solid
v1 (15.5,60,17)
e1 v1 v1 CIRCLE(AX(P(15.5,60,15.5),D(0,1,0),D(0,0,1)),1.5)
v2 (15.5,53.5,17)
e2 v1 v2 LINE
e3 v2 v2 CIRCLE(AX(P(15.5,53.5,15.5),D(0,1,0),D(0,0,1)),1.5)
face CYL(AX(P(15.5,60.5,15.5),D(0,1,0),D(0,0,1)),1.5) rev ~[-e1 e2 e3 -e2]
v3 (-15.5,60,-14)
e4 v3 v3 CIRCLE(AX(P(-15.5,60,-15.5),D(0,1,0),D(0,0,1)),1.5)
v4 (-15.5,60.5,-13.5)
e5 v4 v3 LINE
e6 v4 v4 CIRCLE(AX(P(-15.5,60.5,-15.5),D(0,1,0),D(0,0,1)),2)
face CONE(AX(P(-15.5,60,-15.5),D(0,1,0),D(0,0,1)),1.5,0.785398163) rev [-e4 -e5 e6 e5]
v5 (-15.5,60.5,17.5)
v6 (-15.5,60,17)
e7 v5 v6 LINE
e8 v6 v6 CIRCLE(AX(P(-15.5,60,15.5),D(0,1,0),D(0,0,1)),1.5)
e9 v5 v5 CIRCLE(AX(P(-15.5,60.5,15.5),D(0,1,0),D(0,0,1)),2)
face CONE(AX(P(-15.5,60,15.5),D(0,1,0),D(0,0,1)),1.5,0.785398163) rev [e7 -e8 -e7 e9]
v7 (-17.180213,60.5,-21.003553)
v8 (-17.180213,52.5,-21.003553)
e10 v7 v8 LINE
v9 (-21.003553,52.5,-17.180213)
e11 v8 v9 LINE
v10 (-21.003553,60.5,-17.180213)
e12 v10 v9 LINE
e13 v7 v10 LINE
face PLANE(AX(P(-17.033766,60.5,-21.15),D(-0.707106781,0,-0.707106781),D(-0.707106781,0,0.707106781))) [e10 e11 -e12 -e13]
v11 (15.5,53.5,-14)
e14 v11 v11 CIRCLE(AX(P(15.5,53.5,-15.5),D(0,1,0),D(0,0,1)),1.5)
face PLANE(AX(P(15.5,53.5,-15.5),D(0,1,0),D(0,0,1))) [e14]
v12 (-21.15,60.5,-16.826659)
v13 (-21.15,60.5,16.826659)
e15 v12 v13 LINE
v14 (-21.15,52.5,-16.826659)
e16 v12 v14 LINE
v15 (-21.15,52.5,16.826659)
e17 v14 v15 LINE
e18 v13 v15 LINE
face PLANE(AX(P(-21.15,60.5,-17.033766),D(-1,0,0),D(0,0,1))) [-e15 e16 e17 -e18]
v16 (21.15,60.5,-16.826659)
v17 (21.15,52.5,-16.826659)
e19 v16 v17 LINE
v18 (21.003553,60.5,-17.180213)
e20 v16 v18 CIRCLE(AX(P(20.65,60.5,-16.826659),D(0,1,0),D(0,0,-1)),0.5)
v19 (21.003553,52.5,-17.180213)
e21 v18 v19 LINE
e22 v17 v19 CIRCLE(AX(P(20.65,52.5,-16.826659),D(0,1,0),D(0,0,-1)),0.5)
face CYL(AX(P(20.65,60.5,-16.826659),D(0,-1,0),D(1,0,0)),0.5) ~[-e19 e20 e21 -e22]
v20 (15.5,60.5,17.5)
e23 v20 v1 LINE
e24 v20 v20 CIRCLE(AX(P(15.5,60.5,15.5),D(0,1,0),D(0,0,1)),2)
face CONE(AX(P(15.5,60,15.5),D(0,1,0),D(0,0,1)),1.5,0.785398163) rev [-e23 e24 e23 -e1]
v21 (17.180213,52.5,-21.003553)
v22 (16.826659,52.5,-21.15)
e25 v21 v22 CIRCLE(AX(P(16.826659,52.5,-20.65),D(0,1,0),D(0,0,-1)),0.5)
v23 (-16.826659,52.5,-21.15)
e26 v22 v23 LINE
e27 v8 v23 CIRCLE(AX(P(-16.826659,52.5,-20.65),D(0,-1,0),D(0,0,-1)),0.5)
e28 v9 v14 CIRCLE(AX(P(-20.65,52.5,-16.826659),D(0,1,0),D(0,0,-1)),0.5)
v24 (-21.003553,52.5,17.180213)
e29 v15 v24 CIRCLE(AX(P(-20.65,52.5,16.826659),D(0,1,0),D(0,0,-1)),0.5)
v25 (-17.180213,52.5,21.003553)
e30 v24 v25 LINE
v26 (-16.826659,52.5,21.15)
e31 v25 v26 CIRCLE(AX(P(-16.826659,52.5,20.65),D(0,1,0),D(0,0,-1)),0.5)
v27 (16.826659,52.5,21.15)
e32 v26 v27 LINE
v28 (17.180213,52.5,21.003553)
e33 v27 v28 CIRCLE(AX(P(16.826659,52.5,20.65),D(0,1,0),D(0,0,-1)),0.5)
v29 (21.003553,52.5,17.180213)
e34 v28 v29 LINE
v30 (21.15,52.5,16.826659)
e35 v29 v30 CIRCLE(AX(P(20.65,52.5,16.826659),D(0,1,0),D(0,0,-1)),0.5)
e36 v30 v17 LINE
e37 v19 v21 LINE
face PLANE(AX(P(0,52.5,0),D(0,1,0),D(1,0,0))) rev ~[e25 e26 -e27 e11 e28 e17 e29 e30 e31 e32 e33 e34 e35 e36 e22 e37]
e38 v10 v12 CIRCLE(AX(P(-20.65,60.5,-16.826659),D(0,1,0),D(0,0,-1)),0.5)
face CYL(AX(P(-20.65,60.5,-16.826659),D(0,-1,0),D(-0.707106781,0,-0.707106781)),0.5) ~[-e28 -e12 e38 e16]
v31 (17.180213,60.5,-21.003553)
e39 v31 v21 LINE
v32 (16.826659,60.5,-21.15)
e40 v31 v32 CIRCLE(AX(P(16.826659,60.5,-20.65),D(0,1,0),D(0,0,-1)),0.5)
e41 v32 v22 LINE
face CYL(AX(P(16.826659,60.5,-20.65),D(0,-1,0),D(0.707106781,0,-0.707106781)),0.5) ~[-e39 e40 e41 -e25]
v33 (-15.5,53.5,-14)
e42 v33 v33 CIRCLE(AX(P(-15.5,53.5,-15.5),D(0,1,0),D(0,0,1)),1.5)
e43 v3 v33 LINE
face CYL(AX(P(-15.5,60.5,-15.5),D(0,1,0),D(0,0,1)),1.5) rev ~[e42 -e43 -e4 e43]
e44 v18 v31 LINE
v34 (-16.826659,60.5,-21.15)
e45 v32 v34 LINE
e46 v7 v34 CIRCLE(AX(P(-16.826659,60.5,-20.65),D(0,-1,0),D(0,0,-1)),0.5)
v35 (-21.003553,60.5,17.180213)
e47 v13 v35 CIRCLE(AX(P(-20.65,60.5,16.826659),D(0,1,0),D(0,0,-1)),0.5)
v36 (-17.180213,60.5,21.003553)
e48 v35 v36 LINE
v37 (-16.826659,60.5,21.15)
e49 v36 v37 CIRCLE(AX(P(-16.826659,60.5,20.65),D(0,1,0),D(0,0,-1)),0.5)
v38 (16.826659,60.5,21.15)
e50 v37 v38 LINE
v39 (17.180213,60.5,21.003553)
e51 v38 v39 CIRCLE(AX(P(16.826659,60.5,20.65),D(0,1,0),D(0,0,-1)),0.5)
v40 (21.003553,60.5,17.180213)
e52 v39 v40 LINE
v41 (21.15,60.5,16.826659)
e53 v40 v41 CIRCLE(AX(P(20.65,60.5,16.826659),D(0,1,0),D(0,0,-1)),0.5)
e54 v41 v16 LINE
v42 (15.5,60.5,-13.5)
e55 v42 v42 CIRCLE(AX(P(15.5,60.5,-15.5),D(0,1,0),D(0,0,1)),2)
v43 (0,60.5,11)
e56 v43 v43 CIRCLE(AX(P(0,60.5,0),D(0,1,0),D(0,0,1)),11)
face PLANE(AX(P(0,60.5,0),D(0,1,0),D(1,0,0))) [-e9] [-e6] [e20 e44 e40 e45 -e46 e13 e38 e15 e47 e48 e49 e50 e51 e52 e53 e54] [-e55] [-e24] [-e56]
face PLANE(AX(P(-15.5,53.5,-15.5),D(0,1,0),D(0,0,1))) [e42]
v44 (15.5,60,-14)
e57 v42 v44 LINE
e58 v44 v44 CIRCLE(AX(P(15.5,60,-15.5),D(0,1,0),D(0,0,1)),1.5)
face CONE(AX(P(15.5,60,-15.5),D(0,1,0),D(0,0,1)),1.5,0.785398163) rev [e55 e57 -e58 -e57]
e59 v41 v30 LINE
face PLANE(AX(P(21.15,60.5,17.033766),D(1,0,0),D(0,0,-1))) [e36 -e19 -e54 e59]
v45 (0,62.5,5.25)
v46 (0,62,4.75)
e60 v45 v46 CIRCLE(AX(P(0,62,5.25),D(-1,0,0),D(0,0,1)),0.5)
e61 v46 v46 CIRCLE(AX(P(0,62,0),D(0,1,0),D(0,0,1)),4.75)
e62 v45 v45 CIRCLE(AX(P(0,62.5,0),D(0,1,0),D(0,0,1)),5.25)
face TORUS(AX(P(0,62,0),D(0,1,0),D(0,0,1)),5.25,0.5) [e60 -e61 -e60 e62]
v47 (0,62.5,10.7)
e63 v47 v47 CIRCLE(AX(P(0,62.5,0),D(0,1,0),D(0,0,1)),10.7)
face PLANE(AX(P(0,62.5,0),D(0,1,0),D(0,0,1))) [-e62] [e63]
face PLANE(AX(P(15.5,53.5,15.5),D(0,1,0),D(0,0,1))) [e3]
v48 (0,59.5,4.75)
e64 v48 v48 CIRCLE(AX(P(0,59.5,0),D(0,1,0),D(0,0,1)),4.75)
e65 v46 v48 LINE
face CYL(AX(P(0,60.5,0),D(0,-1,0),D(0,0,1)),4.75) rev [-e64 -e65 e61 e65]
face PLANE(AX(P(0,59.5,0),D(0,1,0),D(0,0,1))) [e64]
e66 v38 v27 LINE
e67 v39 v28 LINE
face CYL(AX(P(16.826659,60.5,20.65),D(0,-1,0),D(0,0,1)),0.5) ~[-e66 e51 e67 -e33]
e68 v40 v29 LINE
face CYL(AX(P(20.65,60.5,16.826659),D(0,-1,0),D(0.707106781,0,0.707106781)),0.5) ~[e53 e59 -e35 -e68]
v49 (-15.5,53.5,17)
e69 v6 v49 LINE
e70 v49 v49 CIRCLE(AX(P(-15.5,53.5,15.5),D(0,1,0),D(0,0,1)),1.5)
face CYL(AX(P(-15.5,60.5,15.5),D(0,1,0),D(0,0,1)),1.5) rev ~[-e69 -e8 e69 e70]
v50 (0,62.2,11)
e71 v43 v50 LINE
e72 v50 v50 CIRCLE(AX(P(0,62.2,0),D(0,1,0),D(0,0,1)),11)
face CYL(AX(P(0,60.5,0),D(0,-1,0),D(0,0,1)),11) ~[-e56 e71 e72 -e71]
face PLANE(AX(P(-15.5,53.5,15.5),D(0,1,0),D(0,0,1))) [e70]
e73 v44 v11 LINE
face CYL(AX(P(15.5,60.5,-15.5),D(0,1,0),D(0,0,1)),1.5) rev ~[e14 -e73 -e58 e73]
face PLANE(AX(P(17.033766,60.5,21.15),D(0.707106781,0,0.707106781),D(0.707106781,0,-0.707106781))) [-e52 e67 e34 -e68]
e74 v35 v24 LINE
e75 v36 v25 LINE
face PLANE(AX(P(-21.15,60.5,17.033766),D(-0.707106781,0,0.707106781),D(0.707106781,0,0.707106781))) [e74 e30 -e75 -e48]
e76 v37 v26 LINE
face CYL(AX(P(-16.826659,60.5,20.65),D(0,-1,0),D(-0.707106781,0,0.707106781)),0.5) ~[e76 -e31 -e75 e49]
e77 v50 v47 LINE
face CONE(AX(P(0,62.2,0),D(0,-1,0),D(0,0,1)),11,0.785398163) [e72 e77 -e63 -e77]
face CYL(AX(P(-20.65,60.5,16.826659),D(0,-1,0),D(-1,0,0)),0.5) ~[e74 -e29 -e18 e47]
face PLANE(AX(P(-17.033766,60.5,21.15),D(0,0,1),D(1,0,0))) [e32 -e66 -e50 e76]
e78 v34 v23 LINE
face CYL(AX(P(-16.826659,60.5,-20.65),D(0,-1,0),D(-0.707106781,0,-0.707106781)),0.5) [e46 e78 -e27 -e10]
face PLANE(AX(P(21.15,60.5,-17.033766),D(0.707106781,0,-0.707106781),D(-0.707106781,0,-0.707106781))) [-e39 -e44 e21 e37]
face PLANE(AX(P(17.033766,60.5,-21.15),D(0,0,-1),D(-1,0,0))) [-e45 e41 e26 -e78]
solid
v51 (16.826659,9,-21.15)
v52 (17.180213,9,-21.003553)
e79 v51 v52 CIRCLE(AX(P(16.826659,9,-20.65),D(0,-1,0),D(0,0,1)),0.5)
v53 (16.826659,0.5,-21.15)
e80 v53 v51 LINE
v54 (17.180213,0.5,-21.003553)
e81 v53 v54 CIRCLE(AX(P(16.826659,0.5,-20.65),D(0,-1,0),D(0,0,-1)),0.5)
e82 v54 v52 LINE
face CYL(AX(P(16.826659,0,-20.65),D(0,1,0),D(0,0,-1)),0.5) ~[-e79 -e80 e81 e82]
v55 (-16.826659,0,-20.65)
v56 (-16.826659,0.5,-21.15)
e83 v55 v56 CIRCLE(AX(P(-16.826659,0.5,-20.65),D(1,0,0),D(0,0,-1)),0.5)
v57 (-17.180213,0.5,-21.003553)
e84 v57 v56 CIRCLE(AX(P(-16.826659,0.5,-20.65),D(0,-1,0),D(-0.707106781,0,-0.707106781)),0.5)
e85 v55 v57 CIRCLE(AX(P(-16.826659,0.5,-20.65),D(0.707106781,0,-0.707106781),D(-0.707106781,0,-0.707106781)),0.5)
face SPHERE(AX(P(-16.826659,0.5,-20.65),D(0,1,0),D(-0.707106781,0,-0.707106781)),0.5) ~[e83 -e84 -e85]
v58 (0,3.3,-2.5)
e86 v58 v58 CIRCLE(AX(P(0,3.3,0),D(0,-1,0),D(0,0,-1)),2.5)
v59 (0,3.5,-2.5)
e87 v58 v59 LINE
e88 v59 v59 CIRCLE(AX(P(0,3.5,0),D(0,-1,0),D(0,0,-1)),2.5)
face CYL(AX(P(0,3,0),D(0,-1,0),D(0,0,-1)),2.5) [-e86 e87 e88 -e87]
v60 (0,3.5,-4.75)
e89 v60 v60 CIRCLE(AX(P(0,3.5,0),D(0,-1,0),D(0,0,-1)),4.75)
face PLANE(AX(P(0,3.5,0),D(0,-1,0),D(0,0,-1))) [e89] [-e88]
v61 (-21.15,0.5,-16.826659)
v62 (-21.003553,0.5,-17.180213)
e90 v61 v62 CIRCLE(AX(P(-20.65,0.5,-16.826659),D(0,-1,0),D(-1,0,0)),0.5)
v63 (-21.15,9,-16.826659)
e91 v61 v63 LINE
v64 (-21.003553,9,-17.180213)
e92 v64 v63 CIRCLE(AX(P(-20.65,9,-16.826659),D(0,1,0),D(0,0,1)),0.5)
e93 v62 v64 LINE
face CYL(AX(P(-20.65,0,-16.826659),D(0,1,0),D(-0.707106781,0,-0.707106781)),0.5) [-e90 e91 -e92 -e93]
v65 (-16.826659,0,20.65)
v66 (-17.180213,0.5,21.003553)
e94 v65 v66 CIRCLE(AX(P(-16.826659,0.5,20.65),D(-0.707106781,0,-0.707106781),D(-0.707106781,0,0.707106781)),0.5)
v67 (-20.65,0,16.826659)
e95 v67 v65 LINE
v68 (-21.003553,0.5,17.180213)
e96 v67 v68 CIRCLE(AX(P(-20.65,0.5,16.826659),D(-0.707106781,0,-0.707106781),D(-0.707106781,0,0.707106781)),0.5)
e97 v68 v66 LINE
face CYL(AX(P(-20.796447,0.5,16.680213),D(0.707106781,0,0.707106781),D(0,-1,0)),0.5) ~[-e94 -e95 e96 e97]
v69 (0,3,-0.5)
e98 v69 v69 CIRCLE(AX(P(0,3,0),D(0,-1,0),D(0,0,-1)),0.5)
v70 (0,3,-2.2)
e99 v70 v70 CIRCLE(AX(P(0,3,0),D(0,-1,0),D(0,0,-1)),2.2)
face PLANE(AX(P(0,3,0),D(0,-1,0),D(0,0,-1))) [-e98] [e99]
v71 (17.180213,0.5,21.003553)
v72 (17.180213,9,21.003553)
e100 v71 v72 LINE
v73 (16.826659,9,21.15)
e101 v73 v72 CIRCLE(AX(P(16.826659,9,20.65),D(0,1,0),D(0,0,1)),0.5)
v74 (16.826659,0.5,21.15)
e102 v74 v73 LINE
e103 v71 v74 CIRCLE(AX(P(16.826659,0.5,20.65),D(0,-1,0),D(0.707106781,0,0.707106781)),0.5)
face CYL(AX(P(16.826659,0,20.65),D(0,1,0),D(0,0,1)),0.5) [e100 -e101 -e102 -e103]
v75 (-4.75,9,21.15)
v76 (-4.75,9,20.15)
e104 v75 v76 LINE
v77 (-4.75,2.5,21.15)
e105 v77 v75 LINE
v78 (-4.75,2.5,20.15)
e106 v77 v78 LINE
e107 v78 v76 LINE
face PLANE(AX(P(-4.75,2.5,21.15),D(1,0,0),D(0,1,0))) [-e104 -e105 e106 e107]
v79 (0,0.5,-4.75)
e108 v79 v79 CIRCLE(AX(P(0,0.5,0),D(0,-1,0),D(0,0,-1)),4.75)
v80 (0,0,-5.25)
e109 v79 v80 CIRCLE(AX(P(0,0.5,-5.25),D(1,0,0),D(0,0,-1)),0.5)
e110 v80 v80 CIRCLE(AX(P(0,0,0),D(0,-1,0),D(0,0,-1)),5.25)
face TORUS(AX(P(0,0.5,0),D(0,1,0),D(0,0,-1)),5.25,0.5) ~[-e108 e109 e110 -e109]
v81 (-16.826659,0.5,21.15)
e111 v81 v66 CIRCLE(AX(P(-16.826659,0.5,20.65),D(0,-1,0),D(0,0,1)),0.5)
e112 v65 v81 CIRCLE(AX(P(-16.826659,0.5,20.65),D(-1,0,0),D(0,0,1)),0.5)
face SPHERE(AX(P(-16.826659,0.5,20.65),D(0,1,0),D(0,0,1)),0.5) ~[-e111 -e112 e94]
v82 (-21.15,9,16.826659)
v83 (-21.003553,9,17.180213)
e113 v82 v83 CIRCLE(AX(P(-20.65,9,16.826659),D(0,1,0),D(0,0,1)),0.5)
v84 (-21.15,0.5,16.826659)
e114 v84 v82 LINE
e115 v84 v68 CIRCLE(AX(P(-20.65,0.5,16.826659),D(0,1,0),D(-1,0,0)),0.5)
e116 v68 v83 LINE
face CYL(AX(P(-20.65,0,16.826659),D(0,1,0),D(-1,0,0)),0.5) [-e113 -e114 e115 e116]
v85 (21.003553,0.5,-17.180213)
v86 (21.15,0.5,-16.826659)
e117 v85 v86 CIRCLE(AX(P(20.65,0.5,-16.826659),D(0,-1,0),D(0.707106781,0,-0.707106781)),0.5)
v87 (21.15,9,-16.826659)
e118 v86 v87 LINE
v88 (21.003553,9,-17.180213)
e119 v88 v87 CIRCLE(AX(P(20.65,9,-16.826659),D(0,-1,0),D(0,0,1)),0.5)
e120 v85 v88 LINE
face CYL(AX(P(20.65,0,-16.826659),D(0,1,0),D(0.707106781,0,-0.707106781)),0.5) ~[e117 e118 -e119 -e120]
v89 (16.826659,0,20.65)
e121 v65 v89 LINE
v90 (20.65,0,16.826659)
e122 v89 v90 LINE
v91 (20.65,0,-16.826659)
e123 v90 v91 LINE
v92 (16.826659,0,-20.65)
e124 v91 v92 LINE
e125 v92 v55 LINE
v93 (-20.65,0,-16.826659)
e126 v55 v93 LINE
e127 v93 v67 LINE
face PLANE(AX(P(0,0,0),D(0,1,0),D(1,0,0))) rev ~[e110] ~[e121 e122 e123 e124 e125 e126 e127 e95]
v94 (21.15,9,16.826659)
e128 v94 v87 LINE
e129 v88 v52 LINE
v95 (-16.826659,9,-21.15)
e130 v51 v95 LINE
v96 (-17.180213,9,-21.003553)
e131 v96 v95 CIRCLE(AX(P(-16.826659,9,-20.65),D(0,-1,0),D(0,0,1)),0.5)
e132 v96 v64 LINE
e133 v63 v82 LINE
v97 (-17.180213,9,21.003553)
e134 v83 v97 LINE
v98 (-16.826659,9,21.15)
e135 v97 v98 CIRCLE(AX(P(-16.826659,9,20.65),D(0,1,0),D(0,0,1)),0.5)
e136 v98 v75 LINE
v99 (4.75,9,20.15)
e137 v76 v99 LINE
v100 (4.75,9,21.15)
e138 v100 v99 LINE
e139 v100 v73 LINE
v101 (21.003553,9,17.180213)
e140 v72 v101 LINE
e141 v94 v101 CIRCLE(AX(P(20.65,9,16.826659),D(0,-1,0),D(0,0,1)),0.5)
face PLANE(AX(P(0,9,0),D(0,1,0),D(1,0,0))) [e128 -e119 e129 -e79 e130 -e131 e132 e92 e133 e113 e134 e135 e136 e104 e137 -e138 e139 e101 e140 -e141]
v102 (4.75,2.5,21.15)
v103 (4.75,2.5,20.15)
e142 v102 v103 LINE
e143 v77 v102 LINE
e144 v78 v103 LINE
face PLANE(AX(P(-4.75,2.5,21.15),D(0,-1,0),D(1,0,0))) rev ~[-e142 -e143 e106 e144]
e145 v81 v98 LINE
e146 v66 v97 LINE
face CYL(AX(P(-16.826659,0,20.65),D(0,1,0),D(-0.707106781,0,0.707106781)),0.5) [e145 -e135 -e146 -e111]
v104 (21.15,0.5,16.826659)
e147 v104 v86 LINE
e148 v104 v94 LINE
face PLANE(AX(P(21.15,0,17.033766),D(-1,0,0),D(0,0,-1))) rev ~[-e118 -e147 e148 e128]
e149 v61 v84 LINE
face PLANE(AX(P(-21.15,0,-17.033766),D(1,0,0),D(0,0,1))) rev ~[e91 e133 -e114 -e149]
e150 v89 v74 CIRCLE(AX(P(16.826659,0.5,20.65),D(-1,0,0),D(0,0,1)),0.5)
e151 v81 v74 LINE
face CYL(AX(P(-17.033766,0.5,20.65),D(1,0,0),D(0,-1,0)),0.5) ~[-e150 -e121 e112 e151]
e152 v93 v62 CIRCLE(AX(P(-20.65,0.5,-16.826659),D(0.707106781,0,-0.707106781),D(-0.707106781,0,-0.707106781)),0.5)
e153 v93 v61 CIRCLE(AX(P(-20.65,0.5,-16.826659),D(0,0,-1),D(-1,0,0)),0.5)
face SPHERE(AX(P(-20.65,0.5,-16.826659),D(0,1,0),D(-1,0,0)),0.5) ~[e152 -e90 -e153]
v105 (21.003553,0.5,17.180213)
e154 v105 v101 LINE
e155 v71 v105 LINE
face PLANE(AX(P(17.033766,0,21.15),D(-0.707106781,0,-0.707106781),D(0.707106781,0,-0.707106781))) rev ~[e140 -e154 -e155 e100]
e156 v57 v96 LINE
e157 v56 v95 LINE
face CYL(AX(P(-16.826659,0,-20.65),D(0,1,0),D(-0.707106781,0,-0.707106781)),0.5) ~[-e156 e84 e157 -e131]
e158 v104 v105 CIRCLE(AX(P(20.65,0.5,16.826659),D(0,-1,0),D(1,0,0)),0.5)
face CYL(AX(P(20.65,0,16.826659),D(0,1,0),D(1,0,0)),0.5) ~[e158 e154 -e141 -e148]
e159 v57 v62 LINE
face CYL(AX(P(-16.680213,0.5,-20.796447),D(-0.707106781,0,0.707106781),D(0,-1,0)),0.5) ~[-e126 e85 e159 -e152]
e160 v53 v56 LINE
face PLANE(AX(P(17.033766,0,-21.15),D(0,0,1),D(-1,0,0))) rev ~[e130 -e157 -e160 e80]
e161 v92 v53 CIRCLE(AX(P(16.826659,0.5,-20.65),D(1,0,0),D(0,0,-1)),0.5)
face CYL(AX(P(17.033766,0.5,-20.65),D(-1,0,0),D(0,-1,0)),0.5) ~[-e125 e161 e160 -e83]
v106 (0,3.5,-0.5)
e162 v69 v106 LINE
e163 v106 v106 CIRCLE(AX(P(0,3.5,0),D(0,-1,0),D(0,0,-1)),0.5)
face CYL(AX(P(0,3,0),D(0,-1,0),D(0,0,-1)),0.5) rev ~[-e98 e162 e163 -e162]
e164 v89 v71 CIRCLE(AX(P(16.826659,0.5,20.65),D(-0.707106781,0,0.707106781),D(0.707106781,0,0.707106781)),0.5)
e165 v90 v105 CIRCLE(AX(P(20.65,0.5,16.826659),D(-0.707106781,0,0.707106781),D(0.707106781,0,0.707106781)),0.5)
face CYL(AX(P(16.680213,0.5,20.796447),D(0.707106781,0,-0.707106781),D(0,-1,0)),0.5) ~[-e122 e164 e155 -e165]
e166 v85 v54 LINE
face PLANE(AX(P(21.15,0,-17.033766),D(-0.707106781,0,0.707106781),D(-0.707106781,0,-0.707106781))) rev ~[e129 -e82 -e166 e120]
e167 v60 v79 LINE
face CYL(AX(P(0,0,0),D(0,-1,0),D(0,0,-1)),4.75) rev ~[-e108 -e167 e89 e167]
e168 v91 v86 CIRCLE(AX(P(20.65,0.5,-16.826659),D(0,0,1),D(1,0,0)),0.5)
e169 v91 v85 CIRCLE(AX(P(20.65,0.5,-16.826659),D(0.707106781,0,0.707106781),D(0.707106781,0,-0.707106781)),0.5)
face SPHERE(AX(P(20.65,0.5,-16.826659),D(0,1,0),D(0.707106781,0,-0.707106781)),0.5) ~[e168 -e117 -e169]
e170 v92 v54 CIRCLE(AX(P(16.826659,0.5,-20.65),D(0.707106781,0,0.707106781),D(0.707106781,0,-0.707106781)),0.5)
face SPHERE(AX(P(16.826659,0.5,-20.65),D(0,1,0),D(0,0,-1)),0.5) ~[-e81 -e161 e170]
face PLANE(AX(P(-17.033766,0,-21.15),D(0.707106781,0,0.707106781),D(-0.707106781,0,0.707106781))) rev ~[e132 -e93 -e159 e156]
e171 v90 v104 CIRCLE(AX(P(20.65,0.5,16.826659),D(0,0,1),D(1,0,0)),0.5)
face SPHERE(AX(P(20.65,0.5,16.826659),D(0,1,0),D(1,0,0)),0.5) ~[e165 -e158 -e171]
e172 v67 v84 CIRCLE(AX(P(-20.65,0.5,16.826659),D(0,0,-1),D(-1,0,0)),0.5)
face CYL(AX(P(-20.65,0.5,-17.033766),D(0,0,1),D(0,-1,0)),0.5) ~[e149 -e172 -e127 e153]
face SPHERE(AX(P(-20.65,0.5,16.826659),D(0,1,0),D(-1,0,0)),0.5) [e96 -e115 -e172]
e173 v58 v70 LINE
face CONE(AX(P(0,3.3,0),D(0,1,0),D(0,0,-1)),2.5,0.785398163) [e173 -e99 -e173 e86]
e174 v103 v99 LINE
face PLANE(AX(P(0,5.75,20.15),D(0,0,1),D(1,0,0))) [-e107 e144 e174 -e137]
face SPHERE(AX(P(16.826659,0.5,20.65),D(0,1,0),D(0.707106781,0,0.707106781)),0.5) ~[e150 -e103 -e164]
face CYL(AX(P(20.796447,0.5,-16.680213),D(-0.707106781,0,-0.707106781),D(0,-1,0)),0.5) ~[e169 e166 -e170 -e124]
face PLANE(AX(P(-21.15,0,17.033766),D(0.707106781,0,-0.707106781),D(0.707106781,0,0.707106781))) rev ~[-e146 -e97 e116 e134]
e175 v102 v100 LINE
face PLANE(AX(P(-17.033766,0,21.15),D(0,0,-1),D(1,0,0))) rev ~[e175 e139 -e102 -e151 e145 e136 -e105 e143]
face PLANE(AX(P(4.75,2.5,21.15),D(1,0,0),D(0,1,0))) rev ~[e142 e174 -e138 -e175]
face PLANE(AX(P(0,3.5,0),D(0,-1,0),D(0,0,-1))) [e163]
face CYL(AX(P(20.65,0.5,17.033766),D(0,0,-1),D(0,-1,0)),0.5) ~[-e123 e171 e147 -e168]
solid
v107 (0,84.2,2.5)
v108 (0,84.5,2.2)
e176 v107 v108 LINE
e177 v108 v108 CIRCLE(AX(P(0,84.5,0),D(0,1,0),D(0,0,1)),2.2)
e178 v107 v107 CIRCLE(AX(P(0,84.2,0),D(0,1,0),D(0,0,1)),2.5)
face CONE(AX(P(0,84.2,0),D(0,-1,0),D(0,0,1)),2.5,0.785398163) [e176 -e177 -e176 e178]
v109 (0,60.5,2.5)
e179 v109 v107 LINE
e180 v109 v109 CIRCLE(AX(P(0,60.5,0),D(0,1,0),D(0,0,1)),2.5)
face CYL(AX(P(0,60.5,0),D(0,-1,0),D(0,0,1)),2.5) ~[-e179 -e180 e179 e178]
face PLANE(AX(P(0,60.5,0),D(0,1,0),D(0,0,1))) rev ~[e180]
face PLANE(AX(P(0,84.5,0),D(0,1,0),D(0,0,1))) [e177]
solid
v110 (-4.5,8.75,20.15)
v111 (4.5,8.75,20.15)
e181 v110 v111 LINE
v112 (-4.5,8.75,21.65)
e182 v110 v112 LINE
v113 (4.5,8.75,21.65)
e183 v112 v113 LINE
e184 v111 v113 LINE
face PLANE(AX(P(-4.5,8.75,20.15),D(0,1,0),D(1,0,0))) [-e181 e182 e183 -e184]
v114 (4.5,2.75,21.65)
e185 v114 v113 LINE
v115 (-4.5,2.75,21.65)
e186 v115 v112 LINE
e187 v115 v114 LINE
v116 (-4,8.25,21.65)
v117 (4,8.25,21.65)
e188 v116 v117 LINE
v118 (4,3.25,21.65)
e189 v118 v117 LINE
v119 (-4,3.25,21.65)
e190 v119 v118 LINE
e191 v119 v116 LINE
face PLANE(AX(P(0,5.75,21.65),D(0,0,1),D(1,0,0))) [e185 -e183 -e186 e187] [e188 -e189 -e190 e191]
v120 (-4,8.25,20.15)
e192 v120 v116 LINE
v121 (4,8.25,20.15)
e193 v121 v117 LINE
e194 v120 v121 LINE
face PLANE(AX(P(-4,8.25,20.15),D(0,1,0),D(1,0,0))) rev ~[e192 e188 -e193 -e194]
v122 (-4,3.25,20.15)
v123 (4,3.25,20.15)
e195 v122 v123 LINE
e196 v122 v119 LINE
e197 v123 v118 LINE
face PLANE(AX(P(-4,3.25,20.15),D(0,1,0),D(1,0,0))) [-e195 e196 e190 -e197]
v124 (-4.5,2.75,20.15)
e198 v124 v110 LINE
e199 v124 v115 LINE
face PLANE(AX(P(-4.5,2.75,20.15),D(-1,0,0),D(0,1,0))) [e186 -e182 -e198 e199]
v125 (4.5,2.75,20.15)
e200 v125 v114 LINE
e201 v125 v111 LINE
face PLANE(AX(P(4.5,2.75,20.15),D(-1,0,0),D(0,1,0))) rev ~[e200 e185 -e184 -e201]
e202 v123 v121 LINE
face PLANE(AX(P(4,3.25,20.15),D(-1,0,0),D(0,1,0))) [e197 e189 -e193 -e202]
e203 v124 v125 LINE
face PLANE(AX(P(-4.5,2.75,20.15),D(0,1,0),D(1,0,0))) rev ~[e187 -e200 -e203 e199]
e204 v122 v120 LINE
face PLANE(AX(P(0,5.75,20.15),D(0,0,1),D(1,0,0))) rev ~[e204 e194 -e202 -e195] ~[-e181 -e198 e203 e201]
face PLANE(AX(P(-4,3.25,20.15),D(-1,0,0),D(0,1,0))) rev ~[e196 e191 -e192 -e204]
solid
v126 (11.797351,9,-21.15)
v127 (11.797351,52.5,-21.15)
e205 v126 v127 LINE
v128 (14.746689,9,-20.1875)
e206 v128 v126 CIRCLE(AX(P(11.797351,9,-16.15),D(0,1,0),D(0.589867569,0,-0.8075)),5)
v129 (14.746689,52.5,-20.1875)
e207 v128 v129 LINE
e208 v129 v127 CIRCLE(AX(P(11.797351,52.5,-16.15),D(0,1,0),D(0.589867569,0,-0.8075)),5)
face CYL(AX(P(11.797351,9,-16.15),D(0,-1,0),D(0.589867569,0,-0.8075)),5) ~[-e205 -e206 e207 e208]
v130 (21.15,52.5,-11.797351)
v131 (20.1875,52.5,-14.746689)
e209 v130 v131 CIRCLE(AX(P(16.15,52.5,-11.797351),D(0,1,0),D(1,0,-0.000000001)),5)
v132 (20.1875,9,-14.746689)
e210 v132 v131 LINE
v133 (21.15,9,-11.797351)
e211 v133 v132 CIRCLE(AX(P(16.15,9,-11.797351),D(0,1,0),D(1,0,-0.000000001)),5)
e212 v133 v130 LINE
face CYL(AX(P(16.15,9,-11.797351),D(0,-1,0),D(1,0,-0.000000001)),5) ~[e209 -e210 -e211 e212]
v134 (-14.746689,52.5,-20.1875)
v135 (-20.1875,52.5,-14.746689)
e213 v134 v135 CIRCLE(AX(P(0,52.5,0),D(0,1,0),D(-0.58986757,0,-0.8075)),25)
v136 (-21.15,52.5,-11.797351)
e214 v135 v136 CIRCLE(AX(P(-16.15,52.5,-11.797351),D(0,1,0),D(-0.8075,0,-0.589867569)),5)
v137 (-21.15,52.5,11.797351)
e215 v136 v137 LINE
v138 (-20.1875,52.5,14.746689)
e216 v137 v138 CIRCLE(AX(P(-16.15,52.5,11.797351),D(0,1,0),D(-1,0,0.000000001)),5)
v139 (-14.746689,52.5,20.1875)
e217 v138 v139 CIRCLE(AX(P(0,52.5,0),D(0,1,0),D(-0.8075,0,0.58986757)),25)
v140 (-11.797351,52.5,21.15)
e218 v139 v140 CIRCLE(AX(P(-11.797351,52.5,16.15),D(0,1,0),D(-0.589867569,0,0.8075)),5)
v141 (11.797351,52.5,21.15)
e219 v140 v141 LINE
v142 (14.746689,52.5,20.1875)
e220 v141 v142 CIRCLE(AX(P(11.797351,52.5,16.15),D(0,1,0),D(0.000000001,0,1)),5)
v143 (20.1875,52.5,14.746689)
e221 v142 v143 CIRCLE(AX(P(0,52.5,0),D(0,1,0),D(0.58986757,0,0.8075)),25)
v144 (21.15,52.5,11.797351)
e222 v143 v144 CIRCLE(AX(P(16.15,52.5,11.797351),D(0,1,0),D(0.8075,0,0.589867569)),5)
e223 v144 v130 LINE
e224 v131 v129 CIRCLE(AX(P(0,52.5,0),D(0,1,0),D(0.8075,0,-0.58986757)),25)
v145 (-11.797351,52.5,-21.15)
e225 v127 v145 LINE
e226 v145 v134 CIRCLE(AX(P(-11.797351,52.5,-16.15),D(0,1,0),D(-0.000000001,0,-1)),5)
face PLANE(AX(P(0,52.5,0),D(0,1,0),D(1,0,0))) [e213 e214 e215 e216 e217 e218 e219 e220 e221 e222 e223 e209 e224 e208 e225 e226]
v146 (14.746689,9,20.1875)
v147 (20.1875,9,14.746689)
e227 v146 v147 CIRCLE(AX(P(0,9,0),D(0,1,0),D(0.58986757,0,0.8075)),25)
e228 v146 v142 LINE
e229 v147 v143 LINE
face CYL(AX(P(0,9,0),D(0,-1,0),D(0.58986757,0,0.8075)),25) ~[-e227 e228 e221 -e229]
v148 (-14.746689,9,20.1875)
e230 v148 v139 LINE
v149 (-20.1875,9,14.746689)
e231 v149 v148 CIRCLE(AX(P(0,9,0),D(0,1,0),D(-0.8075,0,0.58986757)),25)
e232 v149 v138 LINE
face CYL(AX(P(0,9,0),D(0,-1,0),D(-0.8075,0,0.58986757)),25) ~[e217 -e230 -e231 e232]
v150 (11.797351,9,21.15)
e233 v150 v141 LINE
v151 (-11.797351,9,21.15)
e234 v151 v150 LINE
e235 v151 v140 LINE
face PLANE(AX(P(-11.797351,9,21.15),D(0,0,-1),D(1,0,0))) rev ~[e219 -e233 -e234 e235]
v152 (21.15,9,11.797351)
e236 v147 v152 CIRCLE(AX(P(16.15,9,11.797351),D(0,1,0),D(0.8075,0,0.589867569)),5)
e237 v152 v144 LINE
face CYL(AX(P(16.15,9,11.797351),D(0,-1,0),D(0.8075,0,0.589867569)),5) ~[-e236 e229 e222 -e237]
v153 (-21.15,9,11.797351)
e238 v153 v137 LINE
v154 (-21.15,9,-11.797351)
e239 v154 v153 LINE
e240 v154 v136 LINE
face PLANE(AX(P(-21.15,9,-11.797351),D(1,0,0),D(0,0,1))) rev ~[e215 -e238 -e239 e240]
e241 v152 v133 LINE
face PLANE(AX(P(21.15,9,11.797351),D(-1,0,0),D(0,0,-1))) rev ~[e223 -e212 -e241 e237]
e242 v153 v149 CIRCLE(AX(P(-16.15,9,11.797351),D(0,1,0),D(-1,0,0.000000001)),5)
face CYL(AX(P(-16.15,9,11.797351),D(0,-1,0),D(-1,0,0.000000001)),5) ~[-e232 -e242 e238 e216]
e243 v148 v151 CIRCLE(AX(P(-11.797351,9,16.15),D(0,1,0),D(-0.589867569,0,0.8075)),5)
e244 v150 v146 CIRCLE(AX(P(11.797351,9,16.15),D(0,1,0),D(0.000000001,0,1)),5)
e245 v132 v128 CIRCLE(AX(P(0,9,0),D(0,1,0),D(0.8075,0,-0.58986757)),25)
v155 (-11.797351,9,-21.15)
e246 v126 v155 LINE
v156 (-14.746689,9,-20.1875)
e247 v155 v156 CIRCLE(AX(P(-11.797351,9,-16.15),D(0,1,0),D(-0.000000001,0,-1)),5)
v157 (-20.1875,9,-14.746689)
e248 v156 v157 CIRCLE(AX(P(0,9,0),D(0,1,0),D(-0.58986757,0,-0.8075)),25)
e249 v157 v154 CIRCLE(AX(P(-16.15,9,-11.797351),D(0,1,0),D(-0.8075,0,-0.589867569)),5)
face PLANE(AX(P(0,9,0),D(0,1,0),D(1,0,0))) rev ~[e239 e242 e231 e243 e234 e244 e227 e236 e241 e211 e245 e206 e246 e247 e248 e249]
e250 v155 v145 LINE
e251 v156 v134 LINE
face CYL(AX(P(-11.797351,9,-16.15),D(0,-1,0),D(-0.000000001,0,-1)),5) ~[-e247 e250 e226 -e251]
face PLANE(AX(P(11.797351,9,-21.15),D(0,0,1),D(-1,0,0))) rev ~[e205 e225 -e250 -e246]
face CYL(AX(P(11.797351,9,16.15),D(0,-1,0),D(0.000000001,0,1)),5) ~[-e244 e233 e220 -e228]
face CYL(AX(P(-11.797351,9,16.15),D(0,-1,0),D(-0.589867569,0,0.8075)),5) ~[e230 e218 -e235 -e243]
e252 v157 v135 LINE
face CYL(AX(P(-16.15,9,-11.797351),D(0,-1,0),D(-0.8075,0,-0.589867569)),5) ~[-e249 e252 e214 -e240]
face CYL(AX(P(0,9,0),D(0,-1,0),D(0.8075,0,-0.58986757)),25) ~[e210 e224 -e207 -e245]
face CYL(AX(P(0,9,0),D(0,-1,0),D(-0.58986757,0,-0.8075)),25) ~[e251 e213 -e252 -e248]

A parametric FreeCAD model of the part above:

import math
import FreeCAD as App
import Part
import Sketcher

V = App.Vector
Q = App.Units.Quantity


def edges_at(feature, points):
    """Names of the edges that pass closest to the given points."""
    edges = feature.Shape.Edges
    near = lambda p: min(range(len(edges)), key=lambda i: edges[i].distToShape(Part.Vertex(*p))[0])
    return sorted({f"Edge{near(p) + 1}" for p in points})


def add_polygon(sketch, points):
    """Adds a closed chain of lines whose ends are joined by coincident constraints."""
    first, n = sketch.GeometryCount, len(points)
    for a, b in zip(points, points[1:] + points[:1]):
        sketch.addGeometry(Part.LineSegment(App.Vector(*a, 0), App.Vector(*b, 0)), False)
    for i in range(n):
        sketch.addConstraint(Sketcher.Constraint("Coincident", first + i, 2, first + (i + 1) % n, 1))

doc = App.newDocument("Part")
params = doc.addObject("Spreadsheet::Sheet", "Params")
for row, (alias, value) in enumerate([
    ("pad1_length", "9 mm"),
    ("sketch2_diameter", "9.5 mm"),
    ("pocket1_length", "3 mm"),
    ("sketch3_diameter", "5 mm"),
    ("sketch3_diameter2", "9.5 mm"),
    ("pocket2_length", "0.5 mm"),
    ("sketch4_diameter", "1 mm"),
    ("pocket3_length", "0.5 mm"),
    ("chamfer_size", "0.3 mm"),
    ("fillet_radius", "0.5 mm"),
    ("sketch5_width", "9.5 mm"),
    ("sketch5_height", "6.5 mm"),
    ("pocket4_length", "1 mm"),
    ("pad2_length", "8 mm"),
    ("fillet2_radius", "0.5 mm"),
    ("sketch7_diameter", "22 mm"),
    ("sketch7_diameter2", "9.5 mm"),
    ("pad3_length", "2 mm"),
    ("sketch8_diameter", "9.5 mm"),
    ("pocket5_length", "1 mm"),
    ("chamfer2_size", "0.3 mm"),
    ("fillet3_radius", "0.5 mm"),
    ("sketch9_diameter", "3 mm"),
    ("pocket6_length", "7 mm"),
    ("chamfer3_size", "0.5 mm"),
    ("sketch10_radius", "5 mm"),
    ("sketch10_radius2", "25 mm"),
    ("pad4_length", "43.5 mm"),
    ("sketch11_diameter", "5 mm"),
    ("pad5_length", "24 mm"),
    ("chamfer4_size", "0.3 mm"),
    ("sketch12_width", "9 mm"),
    ("sketch12_width2", "8 mm"),
    ("sketch12_height", "6 mm"),
    ("sketch12_height2", "5 mm"),
    ("pad6_length", "1.5 mm"),
], start=1):
    params.set(f"A{row}", alias)
    params.set(f"B{row}", "=" + value)
    params.setAlias(f"B{row}", alias)

body = doc.addObject("PartDesign::Body", "Body")

# Sketch on XZ plane
sketch1 = doc.addObject("Sketcher::SketchObject", "Sketch")
body.addObject(sketch1)
sketch1.AttachmentSupport = (doc.XZ_Plane, [""])
sketch1.MapMode = "FlatFace"
add_polygon(sketch1, [(-17, -21), (-21, -17), (-21, 17), (-17, 21), (17, 21), (21, 17), (21, -17), (17, -21)])  # lines 0-7
sketch1.addConstraint([
    Sketcher.Constraint("Vertical", 1),
    Sketcher.Constraint("Horizontal", 3),
    Sketcher.Constraint("Vertical", 5),
    Sketcher.Constraint("Horizontal", 7),
    Sketcher.Constraint("Symmetric", 0, 2, 4, 2, -1, 1),
    Sketcher.Constraint("Symmetric", 2, 2, 6, 2, -1, 1),
    Sketcher.Constraint("Perpendicular", 0, 2),
    Sketcher.Constraint("Perpendicular", 2, 4),
    Sketcher.Constraint("Perpendicular", 4, 6),
    Sketcher.Constraint("Horizontal", 1, 2, 4, 2),
    Sketcher.Constraint("Vertical", 3, 2, 6, 2),
    Sketcher.Constraint("Equal", 7, 1),
    Sketcher.Constraint("DistanceX", 1, 2, 4, 2, Q("42.3 mm")),
    Sketcher.Constraint("DistanceX", 3, 1, 3, 2, Q("34.067532 mm")),
])
pad1 = doc.addObject("PartDesign::Pad", "Pad")
body.addObject(pad1)
pad1.Profile = sketch1
pad1.setExpression("Length", "Params.pad1_length")
pad1.Reversed = True

# Sketch on XZ plane
sketch2 = doc.addObject("Sketcher::SketchObject", "Sketch001")
body.addObject(sketch2)
sketch2.AttachmentSupport = (doc.XZ_Plane, [""])
sketch2.MapMode = "FlatFace"
sketch2.addGeometry(Part.Circle(V(0, 0, 0), V(0, 0, 1), 4.8), False)
sketch2.addConstraint([
    Sketcher.Constraint("Coincident", 0, 3, -1, 1),
    Sketcher.Constraint("Diameter", 0, Q("9.5 mm")),
])
sketch2.setExpression("Constraints[1]", "Params.sketch2_diameter")
pocket1 = doc.addObject("PartDesign::Pocket", "Pocket")
body.addObject(pocket1)
pocket1.Profile = sketch2
pocket1.setExpression("Length", "Params.pocket1_length")

# Sketch on XZ plane
sketch3 = doc.addObject("Sketcher::SketchObject", "Sketch002")
body.addObject(sketch3)
sketch3.AttachmentSupport = (doc.XZ_Plane, [""])
sketch3.MapMode = "FlatFace"
sketch3.AttachmentOffset = App.Placement(V(0, 0, -3), App.Rotation())
sketch3.addGeometry([
    Part.Circle(V(0, 0, 0), V(0, 0, 1), 4.8),
    Part.Circle(V(0, 0, 0), V(0, 0, 1), 2.5),
], False)
sketch3.addConstraint([
    Sketcher.Constraint("Coincident", 0, 3, -1, 1),
    Sketcher.Constraint("Coincident", 1, 3, -1, 1),
    Sketcher.Constraint("Diameter", 1, Q("5 mm")),
    Sketcher.Constraint("Diameter", 0, Q("9.5 mm")),
])
sketch3.setExpression("Constraints[2]", "Params.sketch3_diameter")
sketch3.setExpression("Constraints[3]", "Params.sketch3_diameter2")
pocket2 = doc.addObject("PartDesign::Pocket", "Pocket001")
body.addObject(pocket2)
pocket2.Profile = sketch3
pocket2.setExpression("Length", "Params.pocket2_length")

# Sketch on XZ plane
sketch4 = doc.addObject("Sketcher::SketchObject", "Sketch003")
body.addObject(sketch4)
sketch4.AttachmentSupport = (doc.XZ_Plane, [""])
sketch4.MapMode = "FlatFace"
sketch4.AttachmentOffset = App.Placement(V(0, 0, -3), App.Rotation())
sketch4.addGeometry(Part.Circle(V(0, 0, 0), V(0, 0, 1), 0.5), False)
sketch4.addConstraint([
    Sketcher.Constraint("Coincident", 0, 3, -1, 1),
    Sketcher.Constraint("Diameter", 0, Q("1 mm")),
])
sketch4.setExpression("Constraints[1]", "Params.sketch4_diameter")
pocket3 = doc.addObject("PartDesign::Pocket", "Pocket002")
body.addObject(pocket3)
pocket3.Profile = sketch4
pocket3.setExpression("Length", "Params.pocket3_length")
doc.recompute()

chamfer = doc.addObject("PartDesign::Chamfer", "Chamfer")
body.addObject(chamfer)
chamfer.Base = (pocket3, edges_at(pocket3, [(0, 3, 2.5)]))
chamfer.setExpression("Size", "Params.chamfer_size")
doc.recompute()

fillet = doc.addObject("PartDesign::Fillet", "Fillet")
body.addObject(fillet)
fillet.Base = (chamfer, edges_at(chamfer, [
    (0, 0, -21.15),
    (19.092, 0, -19.092),
    (21.15, 0, 0),
    (19.092, 0, 19.092),
    (0, 0, 21.15),
    (-19.092, 0, 19.092),
    (-21.15, 4.5, 17.034),
    (-21.15, 4.5, -17.034),
    (-17.034, 4.5, -21.15),
    (17.034, 4.5, -21.15),
    (21.15, 4.5, -17.034),
    (21.15, 4.5, 17.034),
    (17.034, 4.5, 21.15),
    (-17.034, 4.5, 21.15),
    (0, 0, 4.75),
    (-21.15, 0, 0),
    (-19.092, 0, -19.092),
]))
fillet.setExpression("Radius", "Params.fillet_radius")

# Sketch on XY plane
sketch5 = doc.addObject("Sketcher::SketchObject", "Sketch004")
body.addObject(sketch5)
sketch5.AttachmentSupport = (doc.XY_Plane, [""])
sketch5.MapMode = "FlatFace"
sketch5.AttachmentOffset = App.Placement(V(0, 0, 21.15), App.Rotation())
add_polygon(sketch5, [(-5, 9), (-5, 2), (5, 2), (5, 9)])  # lines 0-3
sketch5.addConstraint([
    Sketcher.Constraint("Vertical", 0),
    Sketcher.Constraint("Horizontal", 1),
    Sketcher.Constraint("Vertical", 2),
    Sketcher.Constraint("Horizontal", 3),
    Sketcher.Constraint("DistanceX", 1, 1, 1, 2, Q("9.5 mm")),
    Sketcher.Constraint("DistanceY", 0, 2, 0, 1, Q("6.5 mm")),
    Sketcher.Constraint("DistanceY", -1, 1, 2, 2, Q("9 mm")),
    Sketcher.Constraint("DistanceX", 0, 2, -1, 1, Q("4.75 mm")),
])
sketch5.setExpression("Constraints[8]", "Params.sketch5_width")
sketch5.setExpression("Constraints[9]", "Params.sketch5_height")
pocket4 = doc.addObject("PartDesign::Pocket", "Pocket003")
body.addObject(pocket4)
pocket4.Profile = sketch5
pocket4.setExpression("Length", "Params.pocket4_length")
body2 = doc.addObject("PartDesign::Body", "Body001")

# Sketch on XZ plane
sketch6 = doc.addObject("Sketcher::SketchObject", "Sketch005")
body2.addObject(sketch6)
sketch6.AttachmentSupport = (doc.getObject("XZ_Plane001"), [""])
sketch6.MapMode = "FlatFace"
sketch6.AttachmentOffset = App.Placement(V(0, 0, -60.5), App.Rotation())
add_polygon(sketch6, [(-17, -21), (-21, -17), (-21, 17), (-17, 21), (17, 21), (21, 17), (21, -17), (17, -21)])  # lines 0-7
sketch6.addConstraint([
    Sketcher.Constraint("Vertical", 1),
    Sketcher.Constraint("Horizontal", 3),
    Sketcher.Constraint("Vertical", 5),
    Sketcher.Constraint("Horizontal", 7),
    Sketcher.Constraint("Symmetric", 0, 2, 4, 2, -1, 1),
    Sketcher.Constraint("Symmetric", 2, 2, 6, 2, -1, 1),
    Sketcher.Constraint("Perpendicular", 0, 2),
    Sketcher.Constraint("Perpendicular", 2, 4),
    Sketcher.Constraint("Perpendicular", 4, 6),
    Sketcher.Constraint("Horizontal", 1, 2, 4, 2),
    Sketcher.Constraint("Vertical", 3, 2, 6, 2),
    Sketcher.Constraint("Equal", 7, 1),
    Sketcher.Constraint("DistanceX", 1, 2, 4, 2, Q("42.3 mm")),
    Sketcher.Constraint("DistanceX", 3, 1, 3, 2, Q("34.067532 mm")),
])
pad2 = doc.addObject("PartDesign::Pad", "Pad001")
body2.addObject(pad2)
pad2.Profile = sketch6
pad2.setExpression("Length", "Params.pad2_length")
doc.recompute()

fillet2 = doc.addObject("PartDesign::Fillet", "Fillet001")
body2.addObject(fillet2)
fillet2.Base = (pad2, edges_at(pad2, [
    (-21.15, 56.5, 17.034),
    (-21.15, 56.5, -17.034),
    (-17.034, 56.5, -21.15),
    (17.034, 56.5, -21.15),
    (21.15, 56.5, -17.034),
    (21.15, 56.5, 17.034),
    (17.034, 56.5, 21.15),
    (-17.034, 56.5, 21.15),
]))
fillet2.setExpression("Radius", "Params.fillet2_radius")

# Sketch on XZ plane
sketch7 = doc.addObject("Sketcher::SketchObject", "Sketch006")
body2.addObject(sketch7)
sketch7.AttachmentSupport = (doc.getObject("XZ_Plane001"), [""])
sketch7.MapMode = "FlatFace"
sketch7.AttachmentOffset = App.Placement(V(0, 0, -60.5), App.Rotation())
sketch7.addGeometry([
    Part.Circle(V(0, 0, 0), V(0, 0, 1), 11),
    Part.Circle(V(0, 0, 0), V(0, 0, 1), 4.8),
], False)
sketch7.addConstraint([
    Sketcher.Constraint("Coincident", 0, 3, -1, 1),
    Sketcher.Constraint("Coincident", 1, 3, -1, 1),
    Sketcher.Constraint("Diameter", 0, Q("22 mm")),
    Sketcher.Constraint("Diameter", 1, Q("9.5 mm")),
])
sketch7.setExpression("Constraints[2]", "Params.sketch7_diameter")
sketch7.setExpression("Constraints[3]", "Params.sketch7_diameter2")
pad3 = doc.addObject("PartDesign::Pad", "Pad002")
body2.addObject(pad3)
pad3.Profile = sketch7
pad3.setExpression("Length", "Params.pad3_length")
pad3.Reversed = True

# Sketch on XZ plane
sketch8 = doc.addObject("Sketcher::SketchObject", "Sketch007")
body2.addObject(sketch8)
sketch8.AttachmentSupport = (doc.getObject("XZ_Plane001"), [""])
sketch8.MapMode = "FlatFace"
sketch8.AttachmentOffset = App.Placement(V(0, 0, -59.5), App.Rotation())
sketch8.addGeometry(Part.Circle(V(0, 0, 0), V(0, 0, 1), 4.8), False)
sketch8.addConstraint([
    Sketcher.Constraint("Coincident", 0, 3, -1, 1),
    Sketcher.Constraint("Diameter", 0, Q("9.5 mm")),
])
sketch8.setExpression("Constraints[1]", "Params.sketch8_diameter")
pocket5 = doc.addObject("PartDesign::Pocket", "Pocket004")
body2.addObject(pocket5)
pocket5.Profile = sketch8
pocket5.setExpression("Length", "Params.pocket5_length")
doc.recompute()

chamfer2 = doc.addObject("PartDesign::Chamfer", "Chamfer001")
body2.addObject(chamfer2)
chamfer2.Base = (pocket5, edges_at(pocket5, [(0, 62.5, -11)]))
chamfer2.setExpression("Size", "Params.chamfer2_size")
doc.recompute()

fillet3 = doc.addObject("PartDesign::Fillet", "Fillet002")
body2.addObject(fillet3)
fillet3.Base = (chamfer2, edges_at(chamfer2, [(0, 62.5, -4.75)]))
fillet3.setExpression("Radius", "Params.fillet3_radius")

# Sketch on XZ plane
sketch9 = doc.addObject("Sketcher::SketchObject", "Sketch008")
body2.addObject(sketch9)
sketch9.AttachmentSupport = (doc.getObject("XZ_Plane001"), [""])
sketch9.MapMode = "FlatFace"
sketch9.AttachmentOffset = App.Placement(V(0, 0, -60.5), App.Rotation())
sketch9.addGeometry([
    Part.Circle(V(-15.5, -15.5, 0), V(0, 0, 1), 1.5),
    Part.Circle(V(15.5, -15.5, 0), V(0, 0, 1), 1.5),
    Part.Circle(V(15.5, 15.5, 0), V(0, 0, 1), 1.5),
    Part.Circle(V(-15.5, 15.5, 0), V(0, 0, 1), 1.5),
], False)
sketch9.addConstraint([
    Sketcher.Constraint("Equal", 0, 1),
    Sketcher.Constraint("Equal", 1, 2),
    Sketcher.Constraint("Equal", 2, 3),
    Sketcher.Constraint("Symmetric", 0, 3, 2, 3, -1, 1),
    Sketcher.Constraint("Symmetric", 1, 3, 3, 3, -1, 1),
    Sketcher.Constraint("Symmetric", 0, 3, 1, 3, -2),
    Sketcher.Constraint("Diameter", 0, Q("3 mm")),
    Sketcher.Constraint("DistanceX", 0, 3, 1, 3, Q("31 mm")),
    Sketcher.Constraint("DistanceY", 1, 3, 2, 3, Q("31 mm")),
])
sketch9.setExpression("Constraints[6]", "Params.sketch9_diameter")
pocket6 = doc.addObject("PartDesign::Pocket", "Pocket005")
body2.addObject(pocket6)
pocket6.Profile = sketch9
pocket6.setExpression("Length", "Params.pocket6_length")
pocket6.Reversed = True
doc.recompute()

chamfer3 = doc.addObject("PartDesign::Chamfer", "Chamfer002")
body2.addObject(chamfer3)
chamfer3.Base = (pocket6, edges_at(pocket6, [
    (-15.5, 60.5, -17),
    (15.5, 60.5, -17),
    (15.5, 60.5, 14),
    (-15.5, 60.5, 14),
]))
chamfer3.setExpression("Size", "Params.chamfer3_size")
body3 = doc.addObject("PartDesign::Body", "Body002")

# Sketch on XZ plane
sketch10 = doc.addObject("Sketcher::SketchObject", "Sketch009")
body3.addObject(sketch10)
sketch10.AttachmentSupport = (doc.getObject("XZ_Plane002"), [""])
sketch10.MapMode = "FlatFace"
sketch10.AttachmentOffset = App.Placement(V(0, 0, -9), App.Rotation())
sketch10.addGeometry([
    Part.LineSegment(V(-11.8, 21.1, 0), V(11.8, 21.1, 0)),  # 0
    Part.ArcOfCircle(Part.Circle(V(11.8, 16.1, 0), V(0, 0, 1), 5), math.radians(54), math.radians(90)),  # 1
    Part.ArcOfCircle(Part.Circle(V(0, 0, 0), V(0, 0, 1), 25), math.radians(36.15), math.radians(53.85)),  # 2
    Part.ArcOfCircle(Part.Circle(V(16.1, 11.8, 0), V(0, 0, 1), 5), math.radians(0), math.radians(36)),  # 3
    Part.LineSegment(V(21.1, 11.8, 0), V(21.1, -11.8, 0)),  # 4
    Part.ArcOfCircle(Part.Circle(V(16.1, -11.8, 0), V(0, 0, 1), 5), math.radians(-36), math.radians(0)),  # 5
    Part.ArcOfCircle(Part.Circle(V(0, 0, 0), V(0, 0, 1), 25), math.radians(-53.85), math.radians(-36.15)),  # 6
    Part.ArcOfCircle(Part.Circle(V(11.8, -16.1, 0), V(0, 0, 1), 5), math.radians(-90), math.radians(-54)),  # 7
    Part.LineSegment(V(11.8, -21.1, 0), V(-11.8, -21.1, 0)),  # 8
    Part.ArcOfCircle(Part.Circle(V(-11.8, -16.1, 0), V(0, 0, 1), 5), math.radians(-126), math.radians(-90)),  # 9
    Part.ArcOfCircle(Part.Circle(V(0, 0, 0), V(0, 0, 1), 25), math.radians(-143.85), math.radians(-126.15)),  # 10
    Part.ArcOfCircle(Part.Circle(V(-16.1, -11.8, 0), V(0, 0, 1), 5), math.radians(-180), math.radians(-144)),  # 11
    Part.LineSegment(V(-21.1, -11.8, 0), V(-21.1, 11.8, 0)),  # 12
    Part.ArcOfCircle(Part.Circle(V(-16.1, 11.8, 0), V(0, 0, 1), 5), math.radians(144), math.radians(180)),  # 13
    Part.ArcOfCircle(Part.Circle(V(0, 0, 0), V(0, 0, 1), 25), math.radians(126.15), math.radians(143.85)),  # 14
    Part.ArcOfCircle(Part.Circle(V(-11.8, 16.1, 0), V(0, 0, 1), 5), math.radians(90), math.radians(126)),  # 15
], False)
sketch10.addConstraint([
    Sketcher.Constraint("Tangent", 0, 2, 1, 2),
    Sketcher.Constraint("Tangent", 1, 1, 2, 2),
    Sketcher.Constraint("Tangent", 2, 1, 3, 2),
    Sketcher.Constraint("Tangent", 3, 1, 4, 1),
    Sketcher.Constraint("Tangent", 4, 2, 5, 2),
    Sketcher.Constraint("Tangent", 5, 1, 6, 2),
    Sketcher.Constraint("Tangent", 6, 1, 7, 2),
    Sketcher.Constraint("Tangent", 7, 1, 8, 1),
    Sketcher.Constraint("Tangent", 8, 2, 9, 2),
    Sketcher.Constraint("Tangent", 9, 1, 10, 2),
    Sketcher.Constraint("Tangent", 10, 1, 11, 2),
    Sketcher.Constraint("Tangent", 11, 1, 12, 1),
    Sketcher.Constraint("Tangent", 12, 2, 13, 2),
    Sketcher.Constraint("Tangent", 13, 1, 14, 2),
    Sketcher.Constraint("Tangent", 14, 1, 15, 2),
    Sketcher.Constraint("Tangent", 15, 1, 0, 1),
    Sketcher.Constraint("Horizontal", 0),
    Sketcher.Constraint("Vertical", 4),
    Sketcher.Constraint("Horizontal", 8),
    Sketcher.Constraint("Vertical", 12),
    Sketcher.Constraint("Coincident", 2, 3, -1, 1),
    Sketcher.Constraint("Coincident", 6, 3, -1, 1),
    Sketcher.Constraint("Coincident", 10, 3, -1, 1),
    Sketcher.Constraint("Coincident", 14, 3, -1, 1),
    Sketcher.Constraint("Equal", 1, 3),
    Sketcher.Constraint("Equal", 3, 5),
    Sketcher.Constraint("Equal", 2, 6),
    Sketcher.Constraint("Equal", 5, 7),
    Sketcher.Constraint("Equal", 7, 9),
    Sketcher.Constraint("Equal", 6, 10),
    Sketcher.Constraint("Equal", 9, 11),
    Sketcher.Constraint("Equal", 11, 13),
    Sketcher.Constraint("Equal", 10, 14),
    Sketcher.Constraint("Equal", 13, 15),
    Sketcher.Constraint("Horizontal", 5, 3, 11, 3),
    Sketcher.Constraint("Vertical", 1, 3, 7, 3),
    Sketcher.Constraint("Equal", 8, 4),
    Sketcher.Constraint("Radius", 1, Q("5 mm")),
    Sketcher.Constraint("Radius", 2, Q("25 mm")),
    Sketcher.Constraint("DistanceY", 7, 3, 1, 3, Q("32.3 mm")),
])
sketch10.setExpression("Constraints[37]", "Params.sketch10_radius")
sketch10.setExpression("Constraints[38]", "Params.sketch10_radius2")
pad4 = doc.addObject("PartDesign::Pad", "Pad003")
body3.addObject(pad4)
pad4.Profile = sketch10
pad4.setExpression("Length", "Params.pad4_length")
pad4.Reversed = True
body4 = doc.addObject("PartDesign::Body", "Body003")

# Sketch on XZ plane
sketch11 = doc.addObject("Sketcher::SketchObject", "Sketch010")
body4.addObject(sketch11)
sketch11.AttachmentSupport = (doc.getObject("XZ_Plane003"), [""])
sketch11.MapMode = "FlatFace"
sketch11.AttachmentOffset = App.Placement(V(0, 0, -60.5), App.Rotation())
sketch11.addGeometry(Part.Circle(V(0, 0, 0), V(0, 0, 1), 2.5), False)
sketch11.addConstraint([
    Sketcher.Constraint("Coincident", 0, 3, -1, 1),
    Sketcher.Constraint("Diameter", 0, Q("5 mm")),
])
sketch11.setExpression("Constraints[1]", "Params.sketch11_diameter")
pad5 = doc.addObject("PartDesign::Pad", "Pad004")
body4.addObject(pad5)
pad5.Profile = sketch11
pad5.setExpression("Length", "Params.pad5_length")
pad5.Reversed = True
doc.recompute()

chamfer4 = doc.addObject("PartDesign::Chamfer", "Chamfer003")
body4.addObject(chamfer4)
chamfer4.Base = (pad5, edges_at(pad5, [(0, 84.5, -2.5)]))
chamfer4.setExpression("Size", "Params.chamfer4_size")
body5 = doc.addObject("PartDesign::Body", "Body004")

# Sketch on XY plane
sketch12 = doc.addObject("Sketcher::SketchObject", "Sketch011")
body5.addObject(sketch12)
sketch12.AttachmentSupport = (doc.getObject("XY_Plane004"), [""])
sketch12.MapMode = "FlatFace"
sketch12.AttachmentOffset = App.Placement(V(0, 0, 20.15), App.Rotation())
add_polygon(sketch12, [(-4, 9), (-4, 3), (4, 3), (4, 9)])  # lines 0-3
add_polygon(sketch12, [(4, 3), (-4, 3), (-4, 8), (4, 8)])  # lines 4-7
sketch12.addConstraint([
    Sketcher.Constraint("Vertical", 0),
    Sketcher.Constraint("Horizontal", 1),
    Sketcher.Constraint("Vertical", 2),
    Sketcher.Constraint("Horizontal", 3),
    Sketcher.Constraint("Horizontal", 4),
    Sketcher.Constraint("Vertical", 5),
    Sketcher.Constraint("Horizontal", 6),
    Sketcher.Constraint("Vertical", 7),
    Sketcher.Constraint("DistanceX", 1, 1, 1, 2, Q("9 mm")),
    Sketcher.Constraint("DistanceX", 4, 2, 4, 1, Q("8 mm")),
    Sketcher.Constraint("DistanceY", 0, 2, 0, 1, Q("6 mm")),
    Sketcher.Constraint("DistanceY", 5, 1, 5, 2, Q("5 mm")),
    Sketcher.Constraint("DistanceX", 4, 2, -1, 1, Q("4 mm")),
    Sketcher.Constraint("DistanceX", 0, 2, -1, 1, Q("4.5 mm")),
    Sketcher.Constraint("DistanceY", 0, 2, 4, 2, Q("0.5 mm")),
    Sketcher.Constraint("DistanceY", -1, 1, 0, 2, Q("2.75 mm")),
])
sketch12.setExpression("Constraints[16]", "Params.sketch12_width")
sketch12.setExpression("Constraints[17]", "Params.sketch12_width2")
sketch12.setExpression("Constraints[18]", "Params.sketch12_height")
sketch12.setExpression("Constraints[19]", "Params.sketch12_height2")
pad6 = doc.addObject("PartDesign::Pad", "Pad005")
body5.addObject(pad6)
pad6.Profile = sketch12
pad6.setExpression("Length", "Params.pad6_length")

doc.recompute()
